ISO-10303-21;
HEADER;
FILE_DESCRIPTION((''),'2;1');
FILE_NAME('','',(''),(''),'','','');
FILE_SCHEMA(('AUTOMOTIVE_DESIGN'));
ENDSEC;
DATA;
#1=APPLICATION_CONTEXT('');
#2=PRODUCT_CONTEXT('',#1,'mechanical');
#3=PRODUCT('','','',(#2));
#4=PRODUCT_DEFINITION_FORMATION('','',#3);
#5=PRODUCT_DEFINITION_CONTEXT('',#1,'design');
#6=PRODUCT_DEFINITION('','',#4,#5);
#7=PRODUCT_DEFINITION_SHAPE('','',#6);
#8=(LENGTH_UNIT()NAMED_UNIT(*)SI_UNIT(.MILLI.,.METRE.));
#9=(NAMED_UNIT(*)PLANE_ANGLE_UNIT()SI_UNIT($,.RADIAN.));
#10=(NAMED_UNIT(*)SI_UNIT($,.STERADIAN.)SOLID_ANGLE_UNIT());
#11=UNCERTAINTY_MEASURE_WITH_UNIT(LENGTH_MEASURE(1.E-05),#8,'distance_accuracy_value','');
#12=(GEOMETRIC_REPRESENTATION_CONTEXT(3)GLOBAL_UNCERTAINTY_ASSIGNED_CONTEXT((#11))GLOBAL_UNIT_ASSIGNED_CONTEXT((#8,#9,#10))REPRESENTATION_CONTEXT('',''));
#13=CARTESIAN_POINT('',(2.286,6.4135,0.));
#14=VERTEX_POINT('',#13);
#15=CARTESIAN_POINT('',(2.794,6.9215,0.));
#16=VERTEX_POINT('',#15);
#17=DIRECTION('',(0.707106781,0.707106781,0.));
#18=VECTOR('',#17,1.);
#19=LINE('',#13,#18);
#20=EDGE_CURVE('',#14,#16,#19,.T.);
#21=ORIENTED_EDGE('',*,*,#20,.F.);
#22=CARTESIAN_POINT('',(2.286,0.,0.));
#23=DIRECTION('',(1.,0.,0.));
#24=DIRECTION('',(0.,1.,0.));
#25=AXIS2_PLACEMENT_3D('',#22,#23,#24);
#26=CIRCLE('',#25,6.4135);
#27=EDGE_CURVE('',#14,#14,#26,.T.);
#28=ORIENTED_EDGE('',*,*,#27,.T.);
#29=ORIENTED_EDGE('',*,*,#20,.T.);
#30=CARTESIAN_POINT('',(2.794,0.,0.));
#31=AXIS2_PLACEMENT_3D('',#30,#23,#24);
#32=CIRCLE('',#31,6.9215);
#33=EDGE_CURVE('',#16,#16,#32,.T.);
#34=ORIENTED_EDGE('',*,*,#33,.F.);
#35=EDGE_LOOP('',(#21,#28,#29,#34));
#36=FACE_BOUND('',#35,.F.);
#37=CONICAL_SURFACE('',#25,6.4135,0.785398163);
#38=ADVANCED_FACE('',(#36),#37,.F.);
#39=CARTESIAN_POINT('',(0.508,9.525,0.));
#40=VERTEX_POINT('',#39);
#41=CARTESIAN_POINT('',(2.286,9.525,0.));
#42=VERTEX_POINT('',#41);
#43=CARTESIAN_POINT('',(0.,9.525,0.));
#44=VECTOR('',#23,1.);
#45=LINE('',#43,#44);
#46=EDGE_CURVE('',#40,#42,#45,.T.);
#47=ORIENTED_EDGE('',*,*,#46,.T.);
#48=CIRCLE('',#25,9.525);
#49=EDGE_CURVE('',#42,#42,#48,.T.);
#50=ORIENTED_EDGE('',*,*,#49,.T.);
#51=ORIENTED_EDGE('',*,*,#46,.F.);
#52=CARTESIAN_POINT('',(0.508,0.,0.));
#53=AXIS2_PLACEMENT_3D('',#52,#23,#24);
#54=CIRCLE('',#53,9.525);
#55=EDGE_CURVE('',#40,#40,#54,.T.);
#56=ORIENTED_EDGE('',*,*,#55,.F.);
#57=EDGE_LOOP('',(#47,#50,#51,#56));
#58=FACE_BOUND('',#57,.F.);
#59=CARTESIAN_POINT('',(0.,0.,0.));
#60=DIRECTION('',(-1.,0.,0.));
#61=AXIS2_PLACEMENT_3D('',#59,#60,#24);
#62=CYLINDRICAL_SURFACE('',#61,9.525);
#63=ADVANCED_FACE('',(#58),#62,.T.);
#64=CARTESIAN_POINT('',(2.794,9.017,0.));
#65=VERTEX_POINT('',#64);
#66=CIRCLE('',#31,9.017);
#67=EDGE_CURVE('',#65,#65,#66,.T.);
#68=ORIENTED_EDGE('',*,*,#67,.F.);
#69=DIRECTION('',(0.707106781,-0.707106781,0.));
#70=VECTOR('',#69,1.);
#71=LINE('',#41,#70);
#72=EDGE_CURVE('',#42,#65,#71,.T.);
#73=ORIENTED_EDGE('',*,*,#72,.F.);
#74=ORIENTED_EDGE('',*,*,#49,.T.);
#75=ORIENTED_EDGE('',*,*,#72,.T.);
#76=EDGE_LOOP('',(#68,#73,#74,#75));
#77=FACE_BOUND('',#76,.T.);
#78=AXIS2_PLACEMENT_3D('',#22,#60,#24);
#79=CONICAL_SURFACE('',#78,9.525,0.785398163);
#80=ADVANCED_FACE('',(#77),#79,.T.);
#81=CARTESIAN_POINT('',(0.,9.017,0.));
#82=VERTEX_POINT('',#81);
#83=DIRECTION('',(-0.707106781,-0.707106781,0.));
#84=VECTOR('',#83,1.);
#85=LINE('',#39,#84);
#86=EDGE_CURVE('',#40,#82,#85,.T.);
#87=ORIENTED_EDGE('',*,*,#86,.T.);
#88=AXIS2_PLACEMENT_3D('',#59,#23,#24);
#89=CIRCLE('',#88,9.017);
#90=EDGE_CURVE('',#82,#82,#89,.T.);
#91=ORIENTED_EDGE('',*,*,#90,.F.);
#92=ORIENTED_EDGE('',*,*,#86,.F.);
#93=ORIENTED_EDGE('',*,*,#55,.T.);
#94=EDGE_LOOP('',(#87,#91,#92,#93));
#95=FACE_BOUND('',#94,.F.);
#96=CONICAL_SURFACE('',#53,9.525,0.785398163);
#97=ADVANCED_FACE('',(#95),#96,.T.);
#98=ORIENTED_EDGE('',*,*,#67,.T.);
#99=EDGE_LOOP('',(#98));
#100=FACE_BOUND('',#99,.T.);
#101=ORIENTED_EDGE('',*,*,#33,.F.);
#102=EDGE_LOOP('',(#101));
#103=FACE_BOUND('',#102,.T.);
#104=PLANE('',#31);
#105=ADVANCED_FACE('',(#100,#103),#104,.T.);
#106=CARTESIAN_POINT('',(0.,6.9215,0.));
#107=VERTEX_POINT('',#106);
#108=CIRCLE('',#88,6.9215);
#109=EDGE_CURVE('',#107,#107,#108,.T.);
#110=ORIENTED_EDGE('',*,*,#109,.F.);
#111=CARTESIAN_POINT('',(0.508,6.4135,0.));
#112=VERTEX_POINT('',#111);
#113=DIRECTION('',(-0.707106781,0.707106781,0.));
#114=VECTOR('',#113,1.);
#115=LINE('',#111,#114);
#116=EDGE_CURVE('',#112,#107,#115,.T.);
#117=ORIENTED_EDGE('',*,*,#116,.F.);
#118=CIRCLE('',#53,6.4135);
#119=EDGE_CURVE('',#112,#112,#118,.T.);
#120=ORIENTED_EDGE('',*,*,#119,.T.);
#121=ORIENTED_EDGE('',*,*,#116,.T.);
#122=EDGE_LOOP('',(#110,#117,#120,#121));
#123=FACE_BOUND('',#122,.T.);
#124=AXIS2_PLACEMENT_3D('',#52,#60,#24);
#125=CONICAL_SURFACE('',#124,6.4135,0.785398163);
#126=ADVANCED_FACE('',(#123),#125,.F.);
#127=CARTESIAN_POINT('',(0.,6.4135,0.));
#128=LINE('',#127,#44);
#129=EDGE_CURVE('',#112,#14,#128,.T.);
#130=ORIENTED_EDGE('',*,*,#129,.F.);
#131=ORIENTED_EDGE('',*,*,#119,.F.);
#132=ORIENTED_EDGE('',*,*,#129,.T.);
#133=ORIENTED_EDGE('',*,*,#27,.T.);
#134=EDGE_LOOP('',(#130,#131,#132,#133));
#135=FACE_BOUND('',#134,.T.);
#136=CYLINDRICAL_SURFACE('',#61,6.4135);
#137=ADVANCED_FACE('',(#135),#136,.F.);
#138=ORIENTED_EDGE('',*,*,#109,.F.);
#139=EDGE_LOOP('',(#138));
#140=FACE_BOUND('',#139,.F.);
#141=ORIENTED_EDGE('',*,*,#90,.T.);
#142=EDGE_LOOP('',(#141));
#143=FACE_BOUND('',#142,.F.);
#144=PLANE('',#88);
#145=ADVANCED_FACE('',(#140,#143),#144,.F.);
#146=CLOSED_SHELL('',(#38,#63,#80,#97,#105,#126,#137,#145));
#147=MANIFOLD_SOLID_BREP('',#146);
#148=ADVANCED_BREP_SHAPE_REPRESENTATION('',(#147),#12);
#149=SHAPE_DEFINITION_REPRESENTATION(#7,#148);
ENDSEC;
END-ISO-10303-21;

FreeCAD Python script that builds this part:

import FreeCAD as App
import Part
import Sketcher

V = App.Vector
Q = App.Units.Quantity

doc = App.newDocument("Part")
body = doc.addObject("PartDesign::Body", "Body")

# Sketch on YZ plane
sketch1 = body.newObject("Sketcher::SketchObject", "Sketch")
sketch1.AttachmentSupport = (doc.getObject("YZ_Plane"), [""])
sketch1.MapMode = "FlatFace"
sketch1.addGeometry(Part.Circle(V(0, 0, 0), V(0, 0, 1), 10), False)
sketch1.addGeometry(Part.Circle(V(0, 0, 0), V(0, 0, 1), 6), False)
sketch1.addConstraint(Sketcher.Constraint("Coincident", 0, 3, -1, 1))
sketch1.addConstraint(Sketcher.Constraint("Coincident", 1, 3, -1, 1))
sketch1.addConstraint(Sketcher.Constraint("Diameter", 0, Q("0.75 in")))
sketch1.addConstraint(Sketcher.Constraint("Diameter", 1, Q("0.505 in")))
pad1 = body.newObject("PartDesign::Pad", "Pad")
pad1.Profile = sketch1
pad1.Length = Q("0.11 in")
doc.recompute()

chamfer = body.newObject("PartDesign::Chamfer", "Chamfer")
chamfer.Base = (pad1, ["Edge1"])
chamfer.UseAllEdges = True
chamfer.Size = Q("0.02 in")

doc.recompute()
